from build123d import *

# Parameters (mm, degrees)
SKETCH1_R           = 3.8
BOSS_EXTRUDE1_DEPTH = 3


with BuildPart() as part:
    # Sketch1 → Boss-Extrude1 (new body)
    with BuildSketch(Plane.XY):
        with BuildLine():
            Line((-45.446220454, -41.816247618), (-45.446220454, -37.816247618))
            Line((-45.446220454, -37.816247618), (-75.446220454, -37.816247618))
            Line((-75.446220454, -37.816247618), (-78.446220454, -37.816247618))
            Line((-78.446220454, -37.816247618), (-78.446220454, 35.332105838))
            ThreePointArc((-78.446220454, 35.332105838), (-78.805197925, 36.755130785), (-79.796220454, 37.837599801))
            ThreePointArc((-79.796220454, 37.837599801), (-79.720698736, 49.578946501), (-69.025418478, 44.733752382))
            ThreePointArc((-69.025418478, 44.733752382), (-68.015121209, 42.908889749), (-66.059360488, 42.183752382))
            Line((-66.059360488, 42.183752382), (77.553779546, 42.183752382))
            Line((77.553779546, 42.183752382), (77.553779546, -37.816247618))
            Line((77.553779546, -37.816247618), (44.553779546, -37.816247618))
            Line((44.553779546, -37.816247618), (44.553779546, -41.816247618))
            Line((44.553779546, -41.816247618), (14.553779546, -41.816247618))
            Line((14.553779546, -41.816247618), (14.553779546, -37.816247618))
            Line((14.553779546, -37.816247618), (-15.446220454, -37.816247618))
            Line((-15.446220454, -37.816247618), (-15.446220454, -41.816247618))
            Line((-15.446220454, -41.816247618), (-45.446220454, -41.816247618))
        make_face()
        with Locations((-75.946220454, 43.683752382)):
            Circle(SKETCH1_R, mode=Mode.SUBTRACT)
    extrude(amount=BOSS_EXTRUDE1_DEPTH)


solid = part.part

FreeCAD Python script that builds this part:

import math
import FreeCAD as App
import Part
import Sketcher

V = App.Vector

doc = App.newDocument("Part")
body = doc.addObject("PartDesign::Body", "Body")

sketch1 = body.newObject("Sketcher::SketchObject", "Sketch")
sketch1.AttachmentSupport = (doc.getObject("XY_Plane"), [""])
sketch1.MapMode = "FlatFace"
sketch1.addGeometry(Part.LineSegment(V(-45.4, -37.8, 0), V(-45.4, -41.8, 0)), False)
sketch1.addGeometry(Part.LineSegment(V(-45.4, -41.8, 0), V(-15.4, -41.8, 0)), False)
sketch1.addGeometry(Part.LineSegment(V(-15.4, -41.8, 0), V(-15.4, -37.8, 0)), False)
sketch1.addGeometry(Part.LineSegment(V(-15.4, -37.8, 0), V(14.6, -37.8, 0)), False)
sketch1.addGeometry(Part.LineSegment(V(14.6, -37.8, 0), V(14.6, -41.8, 0)), False)
sketch1.addGeometry(Part.LineSegment(V(14.6, -41.8, 0), V(44.6, -41.8, 0)), False)
sketch1.addGeometry(Part.LineSegment(V(44.6, -41.8, 0), V(44.6, -37.8, 0)), False)
sketch1.addGeometry(Part.LineSegment(V(44.6, -37.8, 0), V(77.6, -37.8, 0)), False)
sketch1.addGeometry(Part.LineSegment(V(77.6, -37.8, 0), V(77.6, 42.2, 0)), False)
sketch1.addGeometry(Part.LineSegment(V(77.6, 42.2, 0), V(-66.1, 42.2, 0)), False)
sketch1.addGeometry(Part.ArcOfCircle(Part.Circle(V(-66.1, 45.2, 0), V(0, 0, 1), 3), math.radians(-171), math.radians(-90)), False)
sketch1.addGeometry(Part.ArcOfCircle(Part.Circle(V(-75.9, 43.7, 0), V(0, 0, 1), 7), math.radians(9), math.radians(237)), False)
sketch1.addGeometry(Part.ArcOfCircle(Part.Circle(V(-81.4, 35.3, 0), V(0, 0, 1), 3), math.radians(0), math.radians(57)), False)
sketch1.addGeometry(Part.LineSegment(V(-78.4, 35.3, 0), V(-78.4, -37.8, 0)), False)
sketch1.addGeometry(Part.LineSegment(V(-78.4, -37.8, 0), V(-45.4, -37.8, 0)), False)
sketch1.addGeometry(Part.Circle(V(-75.9, 43.7, 0), V(0, 0, 1), 3.8), False)
sketch1.addConstraint(Sketcher.Constraint("Coincident", 0, 2, 1, 1))
sketch1.addConstraint(Sketcher.Constraint("Coincident", 1, 2, 2, 1))
sketch1.addConstraint(Sketcher.Constraint("Coincident", 2, 2, 3, 1))
sketch1.addConstraint(Sketcher.Constraint("Coincident", 3, 2, 4, 1))
sketch1.addConstraint(Sketcher.Constraint("Coincident", 4, 2, 5, 1))
sketch1.addConstraint(Sketcher.Constraint("Coincident", 5, 2, 6, 1))
sketch1.addConstraint(Sketcher.Constraint("Coincident", 6, 2, 7, 1))
sketch1.addConstraint(Sketcher.Constraint("Coincident", 7, 2, 8, 1))
sketch1.addConstraint(Sketcher.Constraint("Coincident", 8, 2, 9, 1))
sketch1.addConstraint(Sketcher.Constraint("Tangent", 9, 2, 10, 2))
sketch1.addConstraint(Sketcher.Constraint("Tangent", 10, 1, 11, 1))
sketch1.addConstraint(Sketcher.Constraint("Tangent", 11, 2, 12, 2))
sketch1.addConstraint(Sketcher.Constraint("Tangent", 12, 1, 13, 1))
sketch1.addConstraint(Sketcher.Constraint("Coincident", 13, 2, 14, 1))
sketch1.addConstraint(Sketcher.Constraint("Coincident", 14, 2, 0, 1))
sketch1.addConstraint(Sketcher.Constraint("Vertical", 0))
sketch1.addConstraint(Sketcher.Constraint("Horizontal", 1))
sketch1.addConstraint(Sketcher.Constraint("Vertical", 2))
sketch1.addConstraint(Sketcher.Constraint("Horizontal", 3))
sketch1.addConstraint(Sketcher.Constraint("Vertical", 4))
sketch1.addConstraint(Sketcher.Constraint("Horizontal", 5))
sketch1.addConstraint(Sketcher.Constraint("Vertical", 6))
sketch1.addConstraint(Sketcher.Constraint("Horizontal", 7))
sketch1.addConstraint(Sketcher.Constraint("Vertical", 8))
sketch1.addConstraint(Sketcher.Constraint("Horizontal", 9))
sketch1.addConstraint(Sketcher.Constraint("Vertical", 13))
sketch1.addConstraint(Sketcher.Constraint("Horizontal", 14))
sketch1.addConstraint(Sketcher.Constraint("Coincident", 15, 3, 11, 3))
sketch1.addConstraint(Sketcher.Constraint("Equal", 10, 12))
sketch1.addConstraint(Sketcher.Constraint("Horizontal", 1, 2, 4, 2))
sketch1.addConstraint(Sketcher.Constraint("Horizontal", 3, 2, 6, 2))
sketch1.addConstraint(Sketcher.Constraint("Horizontal", 7, 2, 13, 2))
sketch1.addConstraint(Sketcher.Constraint("Equal", 1, 3))
sketch1.addConstraint(Sketcher.Constraint("Equal", 3, 5))
sketch1.addConstraint(Sketcher.Constraint("Equal", 7, 14))
sketch1.addConstraint(Sketcher.Constraint("Radius", 10, 3.0))
sketch1.addConstraint(Sketcher.Constraint("Radius", 11, 7.0))
sketch1.addConstraint(Sketcher.Constraint("Diameter", 15, 7.6))
sketch1.addConstraint(Sketcher.Constraint("DistanceX", 1, 1, 1, 2, 30.0))
sketch1.addConstraint(Sketcher.Constraint("DistanceX", 7, 1, 7, 2, 33.0))
sketch1.addConstraint(Sketcher.Constraint("DistanceY", 0, 2, 0, 1, 4.0))
sketch1.addConstraint(Sketcher.Constraint("DistanceY", 8, 1, 8, 2, 80.0))
sketch1.addConstraint(Sketcher.Constraint("DistanceY", 11, 3, 10, 3, 1.5))
sketch1.addConstraint(Sketcher.Constraint("DistanceX", 12, 3, 11, 3, 5.5))
sketch1.addConstraint(Sketcher.Constraint("DistanceY", -1, 1, 11, 2, 37.8376))
sketch1.addConstraint(Sketcher.Constraint("DistanceX", 10, 3, -1, 1, 66.05936))
pad1 = body.newObject("PartDesign::Pad", "Pad")
pad1.Profile = sketch1
pad1.Length = 3

doc.recompute()
